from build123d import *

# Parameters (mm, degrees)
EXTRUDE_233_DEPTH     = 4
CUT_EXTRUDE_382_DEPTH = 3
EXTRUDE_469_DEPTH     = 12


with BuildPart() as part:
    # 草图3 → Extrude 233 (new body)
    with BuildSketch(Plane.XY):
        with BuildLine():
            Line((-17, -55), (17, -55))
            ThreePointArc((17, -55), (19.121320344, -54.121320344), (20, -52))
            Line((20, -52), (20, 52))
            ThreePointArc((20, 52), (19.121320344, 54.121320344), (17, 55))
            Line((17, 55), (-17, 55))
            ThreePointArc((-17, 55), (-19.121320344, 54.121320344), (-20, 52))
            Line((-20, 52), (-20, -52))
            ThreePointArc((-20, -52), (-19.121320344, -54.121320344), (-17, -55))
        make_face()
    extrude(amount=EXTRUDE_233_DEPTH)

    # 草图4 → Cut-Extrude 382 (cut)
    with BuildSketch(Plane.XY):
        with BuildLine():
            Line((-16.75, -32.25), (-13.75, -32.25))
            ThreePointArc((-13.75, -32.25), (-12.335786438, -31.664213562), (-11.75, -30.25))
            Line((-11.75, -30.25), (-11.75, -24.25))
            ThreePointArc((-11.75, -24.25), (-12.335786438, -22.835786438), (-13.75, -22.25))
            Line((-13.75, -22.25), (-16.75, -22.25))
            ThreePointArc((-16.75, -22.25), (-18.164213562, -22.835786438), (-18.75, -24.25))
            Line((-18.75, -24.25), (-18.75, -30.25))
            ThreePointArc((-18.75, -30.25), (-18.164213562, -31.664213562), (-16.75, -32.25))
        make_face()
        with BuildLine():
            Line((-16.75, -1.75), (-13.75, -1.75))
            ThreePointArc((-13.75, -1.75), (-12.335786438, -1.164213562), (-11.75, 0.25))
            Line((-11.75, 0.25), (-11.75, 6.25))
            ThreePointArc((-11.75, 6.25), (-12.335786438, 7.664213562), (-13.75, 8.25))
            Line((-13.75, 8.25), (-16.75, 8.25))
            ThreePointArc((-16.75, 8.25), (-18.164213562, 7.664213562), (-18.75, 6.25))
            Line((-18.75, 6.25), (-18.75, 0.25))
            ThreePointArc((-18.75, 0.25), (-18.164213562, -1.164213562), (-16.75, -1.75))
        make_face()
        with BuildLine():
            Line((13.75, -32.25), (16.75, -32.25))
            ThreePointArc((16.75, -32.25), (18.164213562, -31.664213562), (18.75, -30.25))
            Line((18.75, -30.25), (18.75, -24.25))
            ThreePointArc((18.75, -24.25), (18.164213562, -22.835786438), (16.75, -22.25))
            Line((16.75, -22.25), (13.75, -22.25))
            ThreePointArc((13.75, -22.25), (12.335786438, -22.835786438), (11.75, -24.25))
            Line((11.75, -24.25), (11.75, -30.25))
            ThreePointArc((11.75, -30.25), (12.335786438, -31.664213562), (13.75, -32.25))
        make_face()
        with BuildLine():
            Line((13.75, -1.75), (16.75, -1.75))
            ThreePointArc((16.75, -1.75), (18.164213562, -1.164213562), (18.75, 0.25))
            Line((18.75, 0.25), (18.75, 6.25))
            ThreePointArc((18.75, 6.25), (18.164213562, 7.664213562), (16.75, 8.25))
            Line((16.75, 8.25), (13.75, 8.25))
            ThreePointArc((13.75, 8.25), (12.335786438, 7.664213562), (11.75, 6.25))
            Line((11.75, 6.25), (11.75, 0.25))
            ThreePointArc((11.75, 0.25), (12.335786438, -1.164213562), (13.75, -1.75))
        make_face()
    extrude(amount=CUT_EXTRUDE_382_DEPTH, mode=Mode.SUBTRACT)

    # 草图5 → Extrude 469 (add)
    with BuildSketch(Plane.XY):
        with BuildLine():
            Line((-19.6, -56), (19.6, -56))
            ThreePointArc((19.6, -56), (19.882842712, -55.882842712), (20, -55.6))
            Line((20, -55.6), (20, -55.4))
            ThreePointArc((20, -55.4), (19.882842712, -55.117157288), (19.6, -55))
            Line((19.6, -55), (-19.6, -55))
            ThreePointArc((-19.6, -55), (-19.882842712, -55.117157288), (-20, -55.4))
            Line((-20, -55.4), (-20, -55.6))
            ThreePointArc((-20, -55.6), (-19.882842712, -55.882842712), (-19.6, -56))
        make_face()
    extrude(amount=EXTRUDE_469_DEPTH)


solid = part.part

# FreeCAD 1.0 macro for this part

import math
import FreeCAD as App
import Part
import Sketcher

V = App.Vector

doc = App.newDocument("Part")
params = doc.addObject("Spreadsheet::Sheet", "Params")
for row, (alias, value) in enumerate([
    ("sketch1_radius", "3 mm"),
    ("sketch1_width", "34 mm"),
    ("sketch1_height", "104 mm"),
    ("pad1_length", "4 mm"),
    ("sketch2_radius", "2 mm"),
    ("sketch2_width", "3 mm"),
    ("sketch2_height", "6 mm"),
    ("pocket1_length", "3 mm"),
    ("sketch3_radius", "0.4 mm"),
    ("sketch3_width", "39.2 mm"),
    ("sketch3_height", "0.2 mm"),
    ("pad2_length", "12 mm"),
], start=1):
    params.set(f"A{row}", alias)
    params.set(f"B{row}", "=" + value)
    params.setAlias(f"B{row}", alias)

body = doc.addObject("PartDesign::Body", "Body")

# Sketch on XY plane
sketch1 = body.newObject("Sketcher::SketchObject", "Sketch")
sketch1.AttachmentSupport = (doc.getObject("XY_Plane"), [""])
sketch1.MapMode = "FlatFace"
sketch1.addGeometry([
    Part.LineSegment(V(-17, -55, 0), V(17, -55, 0)),  # 0
    Part.ArcOfCircle(Part.Circle(V(17, -52, 0), V(0, 0, 1), 3), math.radians(-90), math.radians(0)),  # 1
    Part.LineSegment(V(20, -52, 0), V(20, 52, 0)),  # 2
    Part.ArcOfCircle(Part.Circle(V(17, 52, 0), V(0, 0, 1), 3), math.radians(0), math.radians(90)),  # 3
    Part.LineSegment(V(17, 55, 0), V(-17, 55, 0)),  # 4
    Part.ArcOfCircle(Part.Circle(V(-17, 52, 0), V(0, 0, 1), 3), math.radians(90), math.radians(180)),  # 5
    Part.LineSegment(V(-20, 52, 0), V(-20, -52, 0)),  # 6
    Part.ArcOfCircle(Part.Circle(V(-17, -52, 0), V(0, 0, 1), 3), math.radians(180), math.radians(270)),  # 7
], False)
sketch1.addConstraint([
    Sketcher.Constraint("Tangent", 0, 2, 1, 1),
    Sketcher.Constraint("Tangent", 1, 2, 2, 1),
    Sketcher.Constraint("Tangent", 2, 2, 3, 1),
    Sketcher.Constraint("Tangent", 3, 2, 4, 1),
    Sketcher.Constraint("Tangent", 4, 2, 5, 1),
    Sketcher.Constraint("Tangent", 5, 2, 6, 1),
    Sketcher.Constraint("Tangent", 6, 2, 7, 1),
    Sketcher.Constraint("Tangent", 7, 2, 0, 1),
    Sketcher.Constraint("Horizontal", 0),
    Sketcher.Constraint("Vertical", 2),
    Sketcher.Constraint("Horizontal", 4),
    Sketcher.Constraint("Vertical", 6),
    Sketcher.Constraint("Equal", 1, 3),
    Sketcher.Constraint("Equal", 3, 5),
    Sketcher.Constraint("Equal", 5, 7),
    Sketcher.Constraint("Symmetric", 1, 3, 5, 3, -1, 1),
    Sketcher.Constraint("Radius", 1, 3.0),
    Sketcher.Constraint("DistanceX", 0, 1, 0, 2, 34.0),
    Sketcher.Constraint("DistanceY", 2, 1, 2, 2, 104.0),
])
sketch1.setExpression("Constraints[16]", "Params.sketch1_radius")
sketch1.setExpression("Constraints[17]", "Params.sketch1_width")
sketch1.setExpression("Constraints[18]", "Params.sketch1_height")
pad1 = body.newObject("PartDesign::Pad", "Pad")
pad1.Profile = sketch1
pad1.setExpression("Length", "Params.pad1_length")

# Sketch on XY plane
sketch2 = body.newObject("Sketcher::SketchObject", "Sketch001")
sketch2.AttachmentSupport = (doc.getObject("XY_Plane"), [""])
sketch2.MapMode = "FlatFace"
sketch2.addGeometry([
    Part.LineSegment(V(-16.8, -32.2, 0), V(-13.8, -32.2, 0)),  # 0
    Part.ArcOfCircle(Part.Circle(V(-13.8, -30.2, 0), V(0, 0, 1), 2), math.radians(-90), math.radians(0)),  # 1
    Part.LineSegment(V(-11.8, -30.2, 0), V(-11.8, -24.2, 0)),  # 2
    Part.ArcOfCircle(Part.Circle(V(-13.8, -24.3, 0), V(0, 0, 1), 2), math.radians(0), math.radians(90)),  # 3
    Part.LineSegment(V(-13.8, -22.2, 0), V(-16.8, -22.2, 0)),  # 4
    Part.ArcOfCircle(Part.Circle(V(-16.7, -24.3, 0), V(0, 0, 1), 2), math.radians(90), math.radians(180)),  # 5
    Part.LineSegment(V(-18.8, -24.2, 0), V(-18.8, -30.2, 0)),  # 6
    Part.ArcOfCircle(Part.Circle(V(-16.7, -30.2, 0), V(0, 0, 1), 2), math.radians(-180), math.radians(-90)),  # 7
    Part.LineSegment(V(-16.8, -1.8, 0), V(-13.8, -1.8, 0)),  # 8
    Part.ArcOfCircle(Part.Circle(V(-13.8, 0.3, 0), V(0, 0, 1), 2), math.radians(-90), math.radians(0)),  # 9
    Part.LineSegment(V(-11.8, 0.2, 0), V(-11.8, 6.2, 0)),  # 10
    Part.ArcOfCircle(Part.Circle(V(-13.8, 6.2, 0), V(0, 0, 1), 2), math.radians(0), math.radians(90)),  # 11
    Part.LineSegment(V(-13.8, 8.2, 0), V(-16.8, 8.2, 0)),  # 12
    Part.ArcOfCircle(Part.Circle(V(-16.7, 6.2, 0), V(0, 0, 1), 2), math.radians(90), math.radians(180)),  # 13
    Part.LineSegment(V(-18.8, 6.2, 0), V(-18.8, 0.2, 0)),  # 14
    Part.ArcOfCircle(Part.Circle(V(-16.7, 0.3, 0), V(0, 0, 1), 2), math.radians(-180), math.radians(-90)),  # 15
    Part.LineSegment(V(13.8, -32.2, 0), V(16.8, -32.2, 0)),  # 16
    Part.ArcOfCircle(Part.Circle(V(16.7, -30.2, 0), V(0, 0, 1), 2), math.radians(-90), math.radians(0)),  # 17
    Part.LineSegment(V(18.8, -30.2, 0), V(18.8, -24.2, 0)),  # 18
    Part.ArcOfCircle(Part.Circle(V(16.7, -24.3, 0), V(0, 0, 1), 2), math.radians(0), math.radians(90)),  # 19
    Part.LineSegment(V(16.8, -22.2, 0), V(13.8, -22.2, 0)),  # 20
    Part.ArcOfCircle(Part.Circle(V(13.8, -24.3, 0), V(0, 0, 1), 2), math.radians(90), math.radians(180)),  # 21
    Part.LineSegment(V(11.8, -24.2, 0), V(11.8, -30.2, 0)),  # 22
    Part.ArcOfCircle(Part.Circle(V(13.8, -30.2, 0), V(0, 0, 1), 2), math.radians(-180), math.radians(-90)),  # 23
    Part.LineSegment(V(13.8, -1.8, 0), V(16.8, -1.8, 0)),  # 24
    Part.ArcOfCircle(Part.Circle(V(16.7, 0.3, 0), V(0, 0, 1), 2), math.radians(-90), math.radians(0)),  # 25
    Part.LineSegment(V(18.8, 0.2, 0), V(18.8, 6.2, 0)),  # 26
    Part.ArcOfCircle(Part.Circle(V(16.7, 6.2, 0), V(0, 0, 1), 2), math.radians(0), math.radians(90)),  # 27
    Part.LineSegment(V(16.8, 8.2, 0), V(13.8, 8.2, 0)),  # 28
    Part.ArcOfCircle(Part.Circle(V(13.8, 6.2, 0), V(0, 0, 1), 2), math.radians(90), math.radians(180)),  # 29
    Part.LineSegment(V(11.8, 6.2, 0), V(11.8, 0.2, 0)),  # 30
    Part.ArcOfCircle(Part.Circle(V(13.8, 0.3, 0), V(0, 0, 1), 2), math.radians(-180), math.radians(-90)),  # 31
], False)
sketch2.addConstraint([
    Sketcher.Constraint("Tangent", 0, 2, 1, 1),
    Sketcher.Constraint("Tangent", 1, 2, 2, 1),
    Sketcher.Constraint("Tangent", 2, 2, 3, 1),
    Sketcher.Constraint("Tangent", 3, 2, 4, 1),
    Sketcher.Constraint("Tangent", 4, 2, 5, 1),
    Sketcher.Constraint("Tangent", 5, 2, 6, 1),
    Sketcher.Constraint("Tangent", 6, 2, 7, 1),
    Sketcher.Constraint("Tangent", 7, 2, 0, 1),
    Sketcher.Constraint("Tangent", 8, 2, 9, 1),
    Sketcher.Constraint("Tangent", 9, 2, 10, 1),
    Sketcher.Constraint("Tangent", 10, 2, 11, 1),
    Sketcher.Constraint("Tangent", 11, 2, 12, 1),
    Sketcher.Constraint("Tangent", 12, 2, 13, 1),
    Sketcher.Constraint("Tangent", 13, 2, 14, 1),
    Sketcher.Constraint("Tangent", 14, 2, 15, 1),
    Sketcher.Constraint("Tangent", 15, 2, 8, 1),
    Sketcher.Constraint("Tangent", 16, 2, 17, 1),
    Sketcher.Constraint("Tangent", 17, 2, 18, 1),
    Sketcher.Constraint("Tangent", 18, 2, 19, 1),
    Sketcher.Constraint("Tangent", 19, 2, 20, 1),
    Sketcher.Constraint("Tangent", 20, 2, 21, 1),
    Sketcher.Constraint("Tangent", 21, 2, 22, 1),
    Sketcher.Constraint("Tangent", 22, 2, 23, 1),
    Sketcher.Constraint("Tangent", 23, 2, 16, 1),
    Sketcher.Constraint("Tangent", 24, 2, 25, 1),
    Sketcher.Constraint("Tangent", 25, 2, 26, 1),
    Sketcher.Constraint("Tangent", 26, 2, 27, 1),
    Sketcher.Constraint("Tangent", 27, 2, 28, 1),
    Sketcher.Constraint("Tangent", 28, 2, 29, 1),
    Sketcher.Constraint("Tangent", 29, 2, 30, 1),
    Sketcher.Constraint("Tangent", 30, 2, 31, 1),
    Sketcher.Constraint("Tangent", 31, 2, 24, 1),
    Sketcher.Constraint("Horizontal", 0),
    Sketcher.Constraint("Vertical", 2),
    Sketcher.Constraint("Horizontal", 4),
    Sketcher.Constraint("Vertical", 6),
    Sketcher.Constraint("Horizontal", 8),
    Sketcher.Constraint("Vertical", 10),
    Sketcher.Constraint("Horizontal", 12),
    Sketcher.Constraint("Vertical", 14),
    Sketcher.Constraint("Horizontal", 16),
    Sketcher.Constraint("Vertical", 18),
    Sketcher.Constraint("Horizontal", 20),
    Sketcher.Constraint("Vertical", 22),
    Sketcher.Constraint("Horizontal", 24),
    Sketcher.Constraint("Vertical", 26),
    Sketcher.Constraint("Horizontal", 28),
    Sketcher.Constraint("Vertical", 30),
    Sketcher.Constraint("Equal", 1, 3),
    Sketcher.Constraint("Equal", 3, 5),
    Sketcher.Constraint("Equal", 5, 7),
    Sketcher.Constraint("Equal", 7, 9),
    Sketcher.Constraint("Equal", 9, 11),
    Sketcher.Constraint("Equal", 11, 13),
    Sketcher.Constraint("Equal", 13, 15),
    Sketcher.Constraint("Equal", 15, 17),
    Sketcher.Constraint("Equal", 17, 19),
    Sketcher.Constraint("Equal", 19, 21),
    Sketcher.Constraint("Equal", 21, 23),
    Sketcher.Constraint("Equal", 23, 25),
    Sketcher.Constraint("Equal", 25, 27),
    Sketcher.Constraint("Equal", 27, 29),
    Sketcher.Constraint("Equal", 29, 31),
    Sketcher.Constraint("Symmetric", 7, 3, 17, 3, -2),
    Sketcher.Constraint("Symmetric", 3, 3, 21, 3, -2),
    Sketcher.Constraint("Symmetric", 15, 3, 25, 3, -2),
    Sketcher.Constraint("Symmetric", 11, 3, 29, 3, -2),
    Sketcher.Constraint("Vertical", 3, 3, 9, 3),
    Sketcher.Constraint("Vertical", 7, 3, 13, 3),
    Sketcher.Constraint("Equal", 6, 10),
    Sketcher.Constraint("Radius", 1, 2.0),
    Sketcher.Constraint("DistanceX", 0, 1, 0, 2, 3.0),
    Sketcher.Constraint("DistanceY", 2, 1, 2, 2, 6.0),
    Sketcher.Constraint("DistanceY", 3, 3, 9, 3, 24.5),
    Sketcher.Constraint("DistanceX", 1, 3, 17, 3, 30.5),
    Sketcher.Constraint("DistanceY", 1, 3, -1, 1, 30.25),
])
sketch2.setExpression("Constraints[70]", "Params.sketch2_radius")
sketch2.setExpression("Constraints[71]", "Params.sketch2_width")
sketch2.setExpression("Constraints[72]", "Params.sketch2_height")
pocket1 = body.newObject("PartDesign::Pocket", "Pocket")
pocket1.Profile = sketch2
pocket1.setExpression("Length", "Params.pocket1_length")
pocket1.Reversed = True

# Sketch on XY plane
sketch3 = body.newObject("Sketcher::SketchObject", "Sketch002")
sketch3.AttachmentSupport = (doc.getObject("XY_Plane"), [""])
sketch3.MapMode = "FlatFace"
sketch3.addGeometry([
    Part.LineSegment(V(-19.6, -56, 0), V(19.6, -56, 0)),  # 0
    Part.ArcOfCircle(Part.Circle(V(19.6, -55.6, 0), V(0, 0, 1), 0.4), math.radians(-90), math.radians(0)),  # 1
    Part.LineSegment(V(20, -55.6, 0), V(20, -55.4, 0)),  # 2
    Part.ArcOfCircle(Part.Circle(V(19.6, -55.4, 0), V(0, 0, 1), 0.4), math.radians(0), math.radians(90)),  # 3
    Part.LineSegment(V(19.6, -55, 0), V(-19.6, -55, 0)),  # 4
    Part.ArcOfCircle(Part.Circle(V(-19.6, -55.4, 0), V(0, 0, 1), 0.4), math.radians(90), math.radians(180)),  # 5
    Part.LineSegment(V(-20, -55.4, 0), V(-20, -55.6, 0)),  # 6
    Part.ArcOfCircle(Part.Circle(V(-19.6, -55.6, 0), V(0, 0, 1), 0.4), math.radians(-180), math.radians(-90)),  # 7
], False)
sketch3.addConstraint([
    Sketcher.Constraint("Tangent", 0, 2, 1, 1),
    Sketcher.Constraint("Tangent", 1, 2, 2, 1),
    Sketcher.Constraint("Tangent", 2, 2, 3, 1),
    Sketcher.Constraint("Tangent", 3, 2, 4, 1),
    Sketcher.Constraint("Tangent", 4, 2, 5, 1),
    Sketcher.Constraint("Tangent", 5, 2, 6, 1),
    Sketcher.Constraint("Tangent", 6, 2, 7, 1),
    Sketcher.Constraint("Tangent", 7, 2, 0, 1),
    Sketcher.Constraint("Horizontal", 0),
    Sketcher.Constraint("Vertical", 2),
    Sketcher.Constraint("Horizontal", 4),
    Sketcher.Constraint("Vertical", 6),
    Sketcher.Constraint("Equal", 1, 3),
    Sketcher.Constraint("Equal", 3, 5),
    Sketcher.Constraint("Equal", 5, 7),
    Sketcher.Constraint("Radius", 1, 0.4),
    Sketcher.Constraint("DistanceX", 0, 1, 0, 2, 39.2),
    Sketcher.Constraint("DistanceY", 2, 1, 2, 2, 0.2),
    Sketcher.Constraint("DistanceY", 0, 2, -1, 1, 56.0),
    Sketcher.Constraint("DistanceX", -1, 1, 1, 2, 20.0),
])
sketch3.setExpression("Constraints[15]", "Params.sketch3_radius")
sketch3.setExpression("Constraints[16]", "Params.sketch3_width")
sketch3.setExpression("Constraints[17]", "Params.sketch3_height")
pad2 = body.newObject("PartDesign::Pad", "Pad001")
pad2.Profile = sketch3
pad2.setExpression("Length", "Params.pad2_length")

doc.recompute()
